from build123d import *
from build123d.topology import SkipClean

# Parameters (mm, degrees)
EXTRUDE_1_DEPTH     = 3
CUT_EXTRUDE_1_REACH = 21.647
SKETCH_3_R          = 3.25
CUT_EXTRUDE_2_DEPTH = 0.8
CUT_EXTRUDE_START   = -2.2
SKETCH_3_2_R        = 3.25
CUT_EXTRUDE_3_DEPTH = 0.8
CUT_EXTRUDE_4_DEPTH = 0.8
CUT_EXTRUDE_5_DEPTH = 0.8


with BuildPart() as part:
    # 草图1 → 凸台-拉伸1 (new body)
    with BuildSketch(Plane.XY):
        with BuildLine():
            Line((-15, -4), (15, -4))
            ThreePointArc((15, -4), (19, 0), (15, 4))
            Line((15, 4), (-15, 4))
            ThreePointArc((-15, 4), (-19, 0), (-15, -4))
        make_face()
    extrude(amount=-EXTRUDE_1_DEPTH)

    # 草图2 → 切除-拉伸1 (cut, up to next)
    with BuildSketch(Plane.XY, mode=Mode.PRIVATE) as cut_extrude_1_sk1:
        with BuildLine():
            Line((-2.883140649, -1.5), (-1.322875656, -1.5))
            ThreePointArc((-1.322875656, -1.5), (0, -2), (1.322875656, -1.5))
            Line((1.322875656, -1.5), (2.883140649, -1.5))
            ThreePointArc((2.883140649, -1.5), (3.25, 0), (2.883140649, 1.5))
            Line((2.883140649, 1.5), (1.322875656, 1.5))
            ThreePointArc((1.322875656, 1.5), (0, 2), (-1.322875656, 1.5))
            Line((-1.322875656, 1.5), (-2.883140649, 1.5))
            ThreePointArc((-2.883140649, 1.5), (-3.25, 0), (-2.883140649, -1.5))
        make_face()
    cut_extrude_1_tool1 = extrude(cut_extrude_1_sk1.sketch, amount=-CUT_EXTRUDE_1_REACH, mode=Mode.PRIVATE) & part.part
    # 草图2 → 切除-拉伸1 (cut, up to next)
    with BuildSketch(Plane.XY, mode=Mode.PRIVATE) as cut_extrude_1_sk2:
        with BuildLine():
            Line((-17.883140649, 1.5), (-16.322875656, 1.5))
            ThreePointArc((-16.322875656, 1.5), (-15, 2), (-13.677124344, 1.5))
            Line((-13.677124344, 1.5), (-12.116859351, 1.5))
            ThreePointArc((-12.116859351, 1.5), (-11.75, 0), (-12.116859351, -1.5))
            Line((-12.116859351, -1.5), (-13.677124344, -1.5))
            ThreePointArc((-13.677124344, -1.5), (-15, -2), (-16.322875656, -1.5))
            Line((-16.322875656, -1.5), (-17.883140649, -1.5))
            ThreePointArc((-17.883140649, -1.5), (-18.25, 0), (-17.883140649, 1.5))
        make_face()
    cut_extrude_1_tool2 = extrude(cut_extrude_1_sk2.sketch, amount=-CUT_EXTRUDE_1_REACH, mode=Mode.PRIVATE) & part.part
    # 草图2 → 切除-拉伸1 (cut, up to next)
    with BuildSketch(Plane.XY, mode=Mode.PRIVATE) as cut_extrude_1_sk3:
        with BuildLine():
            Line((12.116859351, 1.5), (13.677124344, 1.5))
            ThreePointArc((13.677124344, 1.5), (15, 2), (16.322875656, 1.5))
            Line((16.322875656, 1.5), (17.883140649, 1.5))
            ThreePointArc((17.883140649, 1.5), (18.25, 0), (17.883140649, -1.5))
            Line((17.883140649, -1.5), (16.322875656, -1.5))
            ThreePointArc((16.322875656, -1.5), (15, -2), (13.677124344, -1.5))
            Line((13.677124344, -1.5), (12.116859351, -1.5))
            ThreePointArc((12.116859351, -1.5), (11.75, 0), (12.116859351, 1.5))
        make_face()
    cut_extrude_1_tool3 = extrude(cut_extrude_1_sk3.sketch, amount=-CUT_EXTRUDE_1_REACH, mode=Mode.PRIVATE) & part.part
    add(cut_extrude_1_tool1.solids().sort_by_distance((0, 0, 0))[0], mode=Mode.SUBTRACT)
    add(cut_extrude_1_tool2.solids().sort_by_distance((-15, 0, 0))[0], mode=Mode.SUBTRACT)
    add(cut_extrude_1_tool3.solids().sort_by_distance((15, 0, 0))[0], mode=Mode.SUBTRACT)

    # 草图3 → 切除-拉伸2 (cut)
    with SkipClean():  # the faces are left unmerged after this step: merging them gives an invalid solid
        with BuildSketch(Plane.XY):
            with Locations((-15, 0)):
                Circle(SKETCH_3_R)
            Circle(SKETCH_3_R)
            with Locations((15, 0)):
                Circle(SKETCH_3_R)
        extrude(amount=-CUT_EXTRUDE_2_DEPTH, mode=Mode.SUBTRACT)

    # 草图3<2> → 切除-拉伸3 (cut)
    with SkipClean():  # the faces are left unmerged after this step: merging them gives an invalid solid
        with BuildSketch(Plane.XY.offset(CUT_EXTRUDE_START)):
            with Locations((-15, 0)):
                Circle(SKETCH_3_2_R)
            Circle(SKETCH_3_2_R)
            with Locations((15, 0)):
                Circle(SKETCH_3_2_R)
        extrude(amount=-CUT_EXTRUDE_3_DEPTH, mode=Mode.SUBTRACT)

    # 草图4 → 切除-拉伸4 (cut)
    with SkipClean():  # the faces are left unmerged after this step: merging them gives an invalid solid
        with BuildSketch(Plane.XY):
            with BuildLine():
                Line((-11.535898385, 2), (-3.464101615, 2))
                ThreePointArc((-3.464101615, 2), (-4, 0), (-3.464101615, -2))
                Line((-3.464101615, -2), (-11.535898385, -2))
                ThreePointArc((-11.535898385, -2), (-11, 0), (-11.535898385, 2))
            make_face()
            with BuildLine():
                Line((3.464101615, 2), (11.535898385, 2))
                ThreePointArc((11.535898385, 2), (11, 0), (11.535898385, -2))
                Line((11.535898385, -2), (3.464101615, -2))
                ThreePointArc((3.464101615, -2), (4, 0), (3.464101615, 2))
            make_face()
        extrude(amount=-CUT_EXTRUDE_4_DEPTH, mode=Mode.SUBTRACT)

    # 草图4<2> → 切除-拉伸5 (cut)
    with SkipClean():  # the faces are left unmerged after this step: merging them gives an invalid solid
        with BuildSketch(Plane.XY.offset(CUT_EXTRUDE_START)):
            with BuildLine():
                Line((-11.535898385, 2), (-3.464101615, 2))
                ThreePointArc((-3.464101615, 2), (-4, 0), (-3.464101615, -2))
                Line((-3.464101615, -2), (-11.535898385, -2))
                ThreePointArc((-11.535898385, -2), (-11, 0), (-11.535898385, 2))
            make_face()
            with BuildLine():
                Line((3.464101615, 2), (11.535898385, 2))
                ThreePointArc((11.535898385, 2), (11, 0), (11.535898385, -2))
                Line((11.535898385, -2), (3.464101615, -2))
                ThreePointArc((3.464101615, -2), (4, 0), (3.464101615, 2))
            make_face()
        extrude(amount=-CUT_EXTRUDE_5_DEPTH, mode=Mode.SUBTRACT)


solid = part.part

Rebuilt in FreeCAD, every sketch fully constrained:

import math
import FreeCAD as App
import Part
import Sketcher

doc = App.newDocument("Part")
body = doc.addObject("PartDesign::Body", "Body")

sketch1 = doc.addObject("Sketcher::SketchObject", "Sketch")
body.addObject(sketch1)
sketch1.AttachmentSupport = (doc.XY_Plane, [""])
sketch1.MapMode = "FlatFace"
sketch1.addGeometry([
    Part.LineSegment(App.Vector(-15, -4, 0), App.Vector(15, -4, 0)),
    Part.ArcOfCircle(Part.Circle(App.Vector(15, 0, 0), App.Vector(0, 0, 1), 4), math.radians(-90), math.radians(90)),
    Part.LineSegment(App.Vector(15, 4, 0), App.Vector(-15, 4, 0)),
    Part.ArcOfCircle(Part.Circle(App.Vector(-15, 0, 0), App.Vector(0, 0, 1), 4), math.radians(90), math.radians(270)),
], False)
sketch1.addConstraint([
    Sketcher.Constraint("Tangent", 0, 2, 1, 1),
    Sketcher.Constraint("Tangent", 1, 2, 2, 1),
    Sketcher.Constraint("Tangent", 2, 2, 3, 1),
    Sketcher.Constraint("Tangent", 3, 2, 0, 1),
    Sketcher.Constraint("Horizontal", 0),
    Sketcher.Constraint("Horizontal", 2),
    Sketcher.Constraint("Symmetric", 1, 3, 3, 3, -1, 1),
    Sketcher.Constraint("Radius", 1, 4.0),
    Sketcher.Constraint("DistanceX", 0, 1, 0, 2, 30.0),
])
pad1 = doc.addObject("PartDesign::Pad", "Pad")
body.addObject(pad1)
pad1.Profile = sketch1
pad1.Length = 3
pad1.Reversed = True

sketch2 = doc.addObject("Sketcher::SketchObject", "Sketch001")
body.addObject(sketch2)
sketch2.AttachmentSupport = (doc.XY_Plane, [""])
sketch2.MapMode = "FlatFace"
sketch2.addGeometry([
    Part.LineSegment(App.Vector(-2.9, -1.5, 0), App.Vector(-1.3, -1.5, 0)),
    Part.ArcOfCircle(Part.Circle(App.Vector(0, 0, 0), App.Vector(0, 0, 1), 2), math.radians(-131), math.radians(-49)),
    Part.LineSegment(App.Vector(1.3, -1.5, 0), App.Vector(2.9, -1.5, 0)),
    Part.ArcOfCircle(Part.Circle(App.Vector(0, 0, 0), App.Vector(0, 0, 1), 3.3), math.radians(-27), math.radians(27)),
    Part.LineSegment(App.Vector(2.9, 1.5, 0), App.Vector(1.3, 1.5, 0)),
    Part.ArcOfCircle(Part.Circle(App.Vector(0, 0, 0), App.Vector(0, 0, 1), 2), math.radians(49), math.radians(131)),
    Part.LineSegment(App.Vector(-1.3, 1.5, 0), App.Vector(-2.9, 1.5, 0)),
    Part.ArcOfCircle(Part.Circle(App.Vector(0, 0, 0), App.Vector(0, 0, 1), 3.3), math.radians(153), math.radians(207)),
], False)
sketch2.addConstraint([
    Sketcher.Constraint("Coincident", 0, 2, 1, 1),
    Sketcher.Constraint("Coincident", 1, 2, 2, 1),
    Sketcher.Constraint("Coincident", 2, 2, 3, 1),
    Sketcher.Constraint("Coincident", 3, 2, 4, 1),
    Sketcher.Constraint("Coincident", 4, 2, 5, 1),
    Sketcher.Constraint("Coincident", 5, 2, 6, 1),
    Sketcher.Constraint("Coincident", 6, 2, 7, 1),
    Sketcher.Constraint("Coincident", 7, 2, 0, 1),
    Sketcher.Constraint("Horizontal", 0),
    Sketcher.Constraint("Horizontal", 2),
    Sketcher.Constraint("Horizontal", 4),
    Sketcher.Constraint("Horizontal", 6),
    Sketcher.Constraint("Coincident", 1, 3, -1, 1),
    Sketcher.Constraint("Coincident", 3, 3, -1, 1),
    Sketcher.Constraint("Coincident", 5, 3, -1, 1),
    Sketcher.Constraint("Coincident", 7, 3, -1, 1),
    Sketcher.Constraint("Equal", 1, 5),
    Sketcher.Constraint("Equal", 3, 7),
    Sketcher.Constraint("Horizontal", 0, 2, 1, 2),
    Sketcher.Constraint("Horizontal", 4, 2, 5, 2),
    Sketcher.Constraint("Vertical", 2, 2, 3, 2),
    Sketcher.Constraint("Radius", 1, 2.0),
    Sketcher.Constraint("Radius", 3, 3.25),
    Sketcher.Constraint("DistanceY", 2, 2, 3, 2, 3.0),
])
pocket1 = doc.addObject("PartDesign::Pocket", "Pocket")
body.addObject(pocket1)
pocket1.Profile = sketch2
pocket1.Type = "UpToFirst"

sketch3 = doc.addObject("Sketcher::SketchObject", "Sketch002")
body.addObject(sketch3)
sketch3.AttachmentSupport = (doc.XY_Plane, [""])
sketch3.MapMode = "FlatFace"
sketch3.addGeometry([
    Part.LineSegment(App.Vector(-16.3, 1.5, 0), App.Vector(-17.9, 1.5, 0)),
    Part.ArcOfCircle(Part.Circle(App.Vector(-15, 0, 0), App.Vector(0, 0, 1), 3.3), math.radians(153), math.radians(207)),
    Part.LineSegment(App.Vector(-17.9, -1.5, 0), App.Vector(-16.3, -1.5, 0)),
    Part.ArcOfCircle(Part.Circle(App.Vector(-15, 0, 0), App.Vector(0, 0, 1), 2), math.radians(-131), math.radians(-49)),
    Part.LineSegment(App.Vector(-13.7, -1.5, 0), App.Vector(-12.1, -1.5, 0)),
    Part.ArcOfCircle(Part.Circle(App.Vector(-15, 0, 0), App.Vector(0, 0, 1), 3.3), math.radians(-27), math.radians(27)),
    Part.LineSegment(App.Vector(-12.1, 1.5, 0), App.Vector(-13.7, 1.5, 0)),
    Part.ArcOfCircle(Part.Circle(App.Vector(-15, 0, 0), App.Vector(0, 0, 1), 2), math.radians(49), math.radians(131)),
], False)
sketch3.addConstraint([
    Sketcher.Constraint("Coincident", 0, 2, 1, 1),
    Sketcher.Constraint("Coincident", 1, 2, 2, 1),
    Sketcher.Constraint("Coincident", 2, 2, 3, 1),
    Sketcher.Constraint("Coincident", 3, 2, 4, 1),
    Sketcher.Constraint("Coincident", 4, 2, 5, 1),
    Sketcher.Constraint("Coincident", 5, 2, 6, 1),
    Sketcher.Constraint("Coincident", 6, 2, 7, 1),
    Sketcher.Constraint("Coincident", 7, 2, 0, 1),
    Sketcher.Constraint("Horizontal", 0),
    Sketcher.Constraint("Horizontal", 2),
    Sketcher.Constraint("Horizontal", 4),
    Sketcher.Constraint("Horizontal", 6),
    Sketcher.Constraint("Coincident", 3, 3, 1, 3),
    Sketcher.Constraint("Coincident", 5, 3, 1, 3),
    Sketcher.Constraint("Coincident", 7, 3, 1, 3),
    Sketcher.Constraint("Equal", 1, 5),
    Sketcher.Constraint("Equal", 3, 7),
    Sketcher.Constraint("Symmetric", 0, 2, 1, 2, -1),
    Sketcher.Constraint("Horizontal", 2, 2, 3, 2),
    Sketcher.Constraint("Horizontal", 0, 2, 5, 2),
    Sketcher.Constraint("Radius", 3, 2.0),
    Sketcher.Constraint("Radius", 1, 3.25),
    Sketcher.Constraint("DistanceX", 1, 3, -1, 1, 15.0),
    Sketcher.Constraint("DistanceY", 1, 2, 0, 2, 3.0),
])
pocket2 = doc.addObject("PartDesign::Pocket", "Pocket001")
body.addObject(pocket2)
pocket2.Profile = sketch3
pocket2.Type = "UpToFirst"

sketch4 = doc.addObject("Sketcher::SketchObject", "Sketch003")
body.addObject(sketch4)
sketch4.AttachmentSupport = (doc.XY_Plane, [""])
sketch4.MapMode = "FlatFace"
sketch4.addGeometry([
    Part.LineSegment(App.Vector(13.7, 1.5, 0), App.Vector(12.1, 1.5, 0)),
    Part.ArcOfCircle(Part.Circle(App.Vector(15, 0, 0), App.Vector(0, 0, 1), 3.3), math.radians(153), math.radians(207)),
    Part.LineSegment(App.Vector(12.1, -1.5, 0), App.Vector(13.7, -1.5, 0)),
    Part.ArcOfCircle(Part.Circle(App.Vector(15, 0, 0), App.Vector(0, 0, 1), 2), math.radians(-131), math.radians(-49)),
    Part.LineSegment(App.Vector(16.3, -1.5, 0), App.Vector(17.9, -1.5, 0)),
    Part.ArcOfCircle(Part.Circle(App.Vector(15, 0, 0), App.Vector(0, 0, 1), 3.3), math.radians(-27), math.radians(27)),
    Part.LineSegment(App.Vector(17.9, 1.5, 0), App.Vector(16.3, 1.5, 0)),
    Part.ArcOfCircle(Part.Circle(App.Vector(15, 0, 0), App.Vector(0, 0, 1), 2), math.radians(49), math.radians(131)),
], False)
sketch4.addConstraint([
    Sketcher.Constraint("Coincident", 0, 2, 1, 1),
    Sketcher.Constraint("Coincident", 1, 2, 2, 1),
    Sketcher.Constraint("Coincident", 2, 2, 3, 1),
    Sketcher.Constraint("Coincident", 3, 2, 4, 1),
    Sketcher.Constraint("Coincident", 4, 2, 5, 1),
    Sketcher.Constraint("Coincident", 5, 2, 6, 1),
    Sketcher.Constraint("Coincident", 6, 2, 7, 1),
    Sketcher.Constraint("Coincident", 7, 2, 0, 1),
    Sketcher.Constraint("Horizontal", 0),
    Sketcher.Constraint("Horizontal", 2),
    Sketcher.Constraint("Horizontal", 4),
    Sketcher.Constraint("Horizontal", 6),
    Sketcher.Constraint("Coincident", 3, 3, 1, 3),
    Sketcher.Constraint("Coincident", 5, 3, 1, 3),
    Sketcher.Constraint("Coincident", 7, 3, 1, 3),
    Sketcher.Constraint("Equal", 1, 5),
    Sketcher.Constraint("Equal", 3, 7),
    Sketcher.Constraint("Symmetric", 0, 2, 1, 2, -1),
    Sketcher.Constraint("Horizontal", 2, 2, 3, 2),
    Sketcher.Constraint("Horizontal", 0, 2, 5, 2),
    Sketcher.Constraint("Radius", 3, 2.0),
    Sketcher.Constraint("Radius", 1, 3.25),
    Sketcher.Constraint("DistanceX", -1, 1, 1, 3, 15.0),
    Sketcher.Constraint("DistanceY", 1, 2, 0, 2, 3.0),
])
pocket3 = doc.addObject("PartDesign::Pocket", "Pocket002")
body.addObject(pocket3)
pocket3.Profile = sketch4
pocket3.Type = "UpToFirst"

sketch5 = doc.addObject("Sketcher::SketchObject", "Sketch004")
body.addObject(sketch5)
sketch5.AttachmentSupport = (doc.XY_Plane, [""])
sketch5.MapMode = "FlatFace"
sketch5.addGeometry([
    Part.Circle(App.Vector(-15, 0, 0), App.Vector(0, 0, 1), 3.2),
    Part.Circle(App.Vector(0, 0, 0), App.Vector(0, 0, 1), 3.2),
    Part.Circle(App.Vector(15, 0, 0), App.Vector(0, 0, 1), 3.2),
], False)
sketch5.addConstraint([
    Sketcher.Constraint("Coincident", 1, 3, -1, 1),
    Sketcher.Constraint("Equal", 0, 1),
    Sketcher.Constraint("Equal", 1, 2),
    Sketcher.Constraint("Symmetric", 0, 3, 2, 3, -1, 1),
    Sketcher.Constraint("PointOnObject", 0, 3, -1),
    Sketcher.Constraint("Diameter", 0, 6.5),
    Sketcher.Constraint("DistanceX", 0, 3, -1, 1, 15.0),
])
pocket4 = doc.addObject("PartDesign::Pocket", "Pocket003")
body.addObject(pocket4)
pocket4.Profile = sketch5
pocket4.Length = 0.8

sketch6 = doc.addObject("Sketcher::SketchObject", "Sketch005")
body.addObject(sketch6)
sketch6.AttachmentSupport = (doc.XY_Plane, [""])
sketch6.MapMode = "FlatFace"
sketch6.AttachmentOffset = App.Placement(App.Vector(0, 0, -2.2), App.Rotation())
sketch6.addGeometry([
    Part.Circle(App.Vector(-15, 0, 0), App.Vector(0, 0, 1), 3.2),
    Part.Circle(App.Vector(0, 0, 0), App.Vector(0, 0, 1), 3.2),
    Part.Circle(App.Vector(15, 0, 0), App.Vector(0, 0, 1), 3.2),
], False)
sketch6.addConstraint([
    Sketcher.Constraint("Coincident", 1, 3, -1, 1),
    Sketcher.Constraint("Equal", 0, 1),
    Sketcher.Constraint("Equal", 1, 2),
    Sketcher.Constraint("Symmetric", 0, 3, 2, 3, -1, 1),
    Sketcher.Constraint("PointOnObject", 0, 3, -1),
    Sketcher.Constraint("Diameter", 0, 6.5),
    Sketcher.Constraint("DistanceX", 0, 3, -1, 1, 15.0),
])
pocket5 = doc.addObject("PartDesign::Pocket", "Pocket004")
body.addObject(pocket5)
pocket5.Profile = sketch6
pocket5.Length = 0.8

sketch7 = doc.addObject("Sketcher::SketchObject", "Sketch006")
body.addObject(sketch7)
sketch7.AttachmentSupport = (doc.XY_Plane, [""])
sketch7.MapMode = "FlatFace"
sketch7.addGeometry([
    Part.LineSegment(App.Vector(-3.5, 2, 0), App.Vector(-11.5, 2, 0)),
    Part.ArcOfCircle(Part.Circle(App.Vector(-15, 0, 0), App.Vector(0, 0, 1), 4), math.radians(-30), math.radians(30)),
    Part.LineSegment(App.Vector(-11.5, -2, 0), App.Vector(-3.5, -2, 0)),
    Part.ArcOfCircle(Part.Circle(App.Vector(0, 0, 0), App.Vector(0, 0, 1), 4), math.radians(150), math.radians(210)),
    Part.LineSegment(App.Vector(11.5, 2, 0), App.Vector(3.5, 2, 0)),
    Part.ArcOfCircle(Part.Circle(App.Vector(0, 0, 0), App.Vector(0, 0, 1), 4), math.radians(-30), math.radians(30)),
    Part.LineSegment(App.Vector(3.5, -2, 0), App.Vector(11.5, -2, 0)),
    Part.ArcOfCircle(Part.Circle(App.Vector(15, 0, 0), App.Vector(0, 0, 1), 4), math.radians(150), math.radians(210)),
], False)
sketch7.addConstraint([
    Sketcher.Constraint("Coincident", 0, 2, 1, 2),
    Sketcher.Constraint("Coincident", 1, 1, 2, 1),
    Sketcher.Constraint("Coincident", 2, 2, 3, 2),
    Sketcher.Constraint("Coincident", 3, 1, 0, 1),
    Sketcher.Constraint("Coincident", 4, 2, 5, 2),
    Sketcher.Constraint("Coincident", 5, 1, 6, 1),
    Sketcher.Constraint("Coincident", 6, 2, 7, 2),
    Sketcher.Constraint("Coincident", 7, 1, 4, 1),
    Sketcher.Constraint("Horizontal", 0),
    Sketcher.Constraint("Horizontal", 2),
    Sketcher.Constraint("Horizontal", 4),
    Sketcher.Constraint("Horizontal", 6),
    Sketcher.Constraint("Coincident", 3, 3, -1, 1),
    Sketcher.Constraint("Coincident", 5, 3, -1, 1),
    Sketcher.Constraint("Equal", 1, 3),
    Sketcher.Constraint("Equal", 3, 5),
    Sketcher.Constraint("Equal", 5, 7),
    Sketcher.Constraint("Symmetric", 1, 3, 7, 3, -1, 1),
    Sketcher.Constraint("Symmetric", 1, 1, 6, 2, -2),
    Sketcher.Constraint("Horizontal", 3, 1, 4, 2),
    Sketcher.Constraint("Vertical", 0, 2, 1, 1),
    Sketcher.Constraint("Radius", 1, 4.0),
    Sketcher.Constraint("DistanceX", 1, 3, -1, 1, 15.0),
    Sketcher.Constraint("DistanceY", -1, 1, 0, 2, 2.0),
])
pocket6 = doc.addObject("PartDesign::Pocket", "Pocket005")
body.addObject(pocket6)
pocket6.Profile = sketch7
pocket6.Length = 0.8

sketch8 = doc.addObject("Sketcher::SketchObject", "Sketch007")
body.addObject(sketch8)
sketch8.AttachmentSupport = (doc.XY_Plane, [""])
sketch8.MapMode = "FlatFace"
sketch8.AttachmentOffset = App.Placement(App.Vector(0, 0, -2.2), App.Rotation())
sketch8.addGeometry([
    Part.LineSegment(App.Vector(-3.5, 2, 0), App.Vector(-11.5, 2, 0)),
    Part.ArcOfCircle(Part.Circle(App.Vector(-15, 0, 0), App.Vector(0, 0, 1), 4), math.radians(-30), math.radians(30)),
    Part.LineSegment(App.Vector(-11.5, -2, 0), App.Vector(-3.5, -2, 0)),
    Part.ArcOfCircle(Part.Circle(App.Vector(0, 0, 0), App.Vector(0, 0, 1), 4), math.radians(150), math.radians(210)),
    Part.LineSegment(App.Vector(11.5, 2, 0), App.Vector(3.5, 2, 0)),
    Part.ArcOfCircle(Part.Circle(App.Vector(0, 0, 0), App.Vector(0, 0, 1), 4), math.radians(-30), math.radians(30)),
    Part.LineSegment(App.Vector(3.5, -2, 0), App.Vector(11.5, -2, 0)),
    Part.ArcOfCircle(Part.Circle(App.Vector(15, 0, 0), App.Vector(0, 0, 1), 4), math.radians(150), math.radians(210)),
], False)
sketch8.addConstraint([
    Sketcher.Constraint("Coincident", 0, 2, 1, 2),
    Sketcher.Constraint("Coincident", 1, 1, 2, 1),
    Sketcher.Constraint("Coincident", 2, 2, 3, 2),
    Sketcher.Constraint("Coincident", 3, 1, 0, 1),
    Sketcher.Constraint("Coincident", 4, 2, 5, 2),
    Sketcher.Constraint("Coincident", 5, 1, 6, 1),
    Sketcher.Constraint("Coincident", 6, 2, 7, 2),
    Sketcher.Constraint("Coincident", 7, 1, 4, 1),
    Sketcher.Constraint("Horizontal", 0),
    Sketcher.Constraint("Horizontal", 2),
    Sketcher.Constraint("Horizontal", 4),
    Sketcher.Constraint("Horizontal", 6),
    Sketcher.Constraint("Coincident", 3, 3, -1, 1),
    Sketcher.Constraint("Coincident", 5, 3, -1, 1),
    Sketcher.Constraint("Equal", 1, 3),
    Sketcher.Constraint("Equal", 3, 5),
    Sketcher.Constraint("Equal", 5, 7),
    Sketcher.Constraint("Symmetric", 1, 3, 7, 3, -1, 1),
    Sketcher.Constraint("Symmetric", 1, 1, 6, 2, -2),
    Sketcher.Constraint("Horizontal", 3, 1, 4, 2),
    Sketcher.Constraint("Vertical", 0, 2, 1, 1),
    Sketcher.Constraint("Radius", 1, 4.0),
    Sketcher.Constraint("DistanceX", 1, 3, -1, 1, 15.0),
    Sketcher.Constraint("DistanceY", -1, 1, 0, 2, 2.0),
])
pocket7 = doc.addObject("PartDesign::Pocket", "Pocket006")
body.addObject(pocket7)
pocket7.Profile = sketch8
pocket7.Length = 0.8

doc.recompute()
